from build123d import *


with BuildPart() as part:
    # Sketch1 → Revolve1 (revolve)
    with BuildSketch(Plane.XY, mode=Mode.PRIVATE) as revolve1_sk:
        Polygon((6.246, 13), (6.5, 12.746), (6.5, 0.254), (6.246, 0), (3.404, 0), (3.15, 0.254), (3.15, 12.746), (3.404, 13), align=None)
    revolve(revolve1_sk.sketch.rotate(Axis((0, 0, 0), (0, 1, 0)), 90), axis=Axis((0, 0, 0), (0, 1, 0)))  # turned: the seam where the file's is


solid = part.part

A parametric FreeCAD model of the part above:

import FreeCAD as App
import Part
import Sketcher
Q = App.Units.Quantity

doc = App.newDocument("Part")
body = doc.addObject("PartDesign::Body", "Body")

# Sketch on XY plane
sketch1 = doc.addObject("Sketcher::SketchObject", "Sketch")
body.addObject(sketch1)
sketch1.AttachmentSupport = (doc.XY_Plane, [""])
sketch1.MapMode = "FlatFace"
sketch1.addGeometry([
    Part.LineSegment(App.Vector(6.5, 12.75, 0), App.Vector(6.25, 13, 0)),  # 0
    Part.LineSegment(App.Vector(6.25, 13, 0), App.Vector(3.4, 13, 0)),  # 1
    Part.LineSegment(App.Vector(3.4, 13, 0), App.Vector(3.15, 12.75, 0)),  # 2
    Part.LineSegment(App.Vector(3.15, 12.75, 0), App.Vector(3.15, 0.25, 0)),  # 3
    Part.LineSegment(App.Vector(3.15, 0.25, 0), App.Vector(3.4, 0, 0)),  # 4
    Part.LineSegment(App.Vector(3.4, 0, 0), App.Vector(6.25, 0, 0)),  # 5
    Part.LineSegment(App.Vector(6.25, 0, 0), App.Vector(6.5, 0.25, 0)),  # 6
    Part.LineSegment(App.Vector(6.5, 0.25, 0), App.Vector(6.5, 12.75, 0)),  # 7
], False)
sketch1.addConstraint([
    Sketcher.Constraint("Coincident", 0, 2, 1, 1),
    Sketcher.Constraint("Coincident", 1, 2, 2, 1),
    Sketcher.Constraint("Coincident", 2, 2, 3, 1),
    Sketcher.Constraint("Coincident", 3, 2, 4, 1),
    Sketcher.Constraint("Coincident", 4, 2, 5, 1),
    Sketcher.Constraint("Coincident", 5, 2, 6, 1),
    Sketcher.Constraint("Coincident", 6, 2, 7, 1),
    Sketcher.Constraint("Coincident", 7, 2, 0, 1),
    Sketcher.Constraint("Horizontal", 1),
    Sketcher.Constraint("Vertical", 3),
    Sketcher.Constraint("Horizontal", 5),
    Sketcher.Constraint("Vertical", 7),
    Sketcher.Constraint("PointOnObject", 4, 2, -1),
    Sketcher.Constraint("Perpendicular", 0, 2),
    Sketcher.Constraint("Perpendicular", 2, 4),
    Sketcher.Constraint("Perpendicular", 4, 6),
    Sketcher.Constraint("Horizontal", 3, 2, 6, 2),
    Sketcher.Constraint("Horizontal", 2, 2, 7, 2),
    Sketcher.Constraint("Vertical", 1, 2, 4, 2),
    Sketcher.Constraint("Vertical", 0, 2, 5, 2),
    Sketcher.Constraint("DistanceY", -1, 1, 0, 2, Q("13 mm")),
    Sketcher.Constraint("DistanceX", -1, 1, 6, 2, Q("6.5 mm")),
    Sketcher.Constraint("DistanceX", 1, 2, 1, 1, Q("2.842 mm")),
    Sketcher.Constraint("DistanceY", 3, 2, 3, 1, Q("12.492 mm")),
])
revolution = doc.addObject("PartDesign::Revolution", "Revolution")
body.addObject(revolution)
revolution.Profile = sketch1
revolution.ReferenceAxis = (sketch1, ["V_Axis"])
revolution.Angle = 360

doc.recompute()
